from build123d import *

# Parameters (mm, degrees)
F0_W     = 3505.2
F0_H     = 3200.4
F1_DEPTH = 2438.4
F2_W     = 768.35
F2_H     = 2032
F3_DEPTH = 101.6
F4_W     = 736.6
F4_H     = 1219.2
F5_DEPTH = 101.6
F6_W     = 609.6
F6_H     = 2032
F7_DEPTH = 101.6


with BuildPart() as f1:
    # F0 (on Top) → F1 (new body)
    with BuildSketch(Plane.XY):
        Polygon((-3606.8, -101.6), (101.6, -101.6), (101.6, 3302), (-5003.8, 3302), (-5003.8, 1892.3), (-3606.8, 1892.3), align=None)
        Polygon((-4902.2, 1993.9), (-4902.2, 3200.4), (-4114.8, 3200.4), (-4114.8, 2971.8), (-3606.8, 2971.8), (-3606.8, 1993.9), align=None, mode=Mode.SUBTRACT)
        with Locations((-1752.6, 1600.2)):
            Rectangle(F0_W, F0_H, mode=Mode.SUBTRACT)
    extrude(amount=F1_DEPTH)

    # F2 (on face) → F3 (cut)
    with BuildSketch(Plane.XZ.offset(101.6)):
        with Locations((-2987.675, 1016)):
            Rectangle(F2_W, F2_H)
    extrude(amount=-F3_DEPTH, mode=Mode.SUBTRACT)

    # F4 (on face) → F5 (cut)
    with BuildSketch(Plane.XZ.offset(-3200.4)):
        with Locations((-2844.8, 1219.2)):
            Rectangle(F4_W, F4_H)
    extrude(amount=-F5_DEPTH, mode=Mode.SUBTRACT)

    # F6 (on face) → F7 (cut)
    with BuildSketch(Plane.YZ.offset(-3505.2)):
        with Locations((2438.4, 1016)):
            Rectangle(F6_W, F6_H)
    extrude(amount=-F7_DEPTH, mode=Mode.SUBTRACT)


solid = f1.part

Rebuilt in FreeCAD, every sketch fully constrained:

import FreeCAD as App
import Part
import Sketcher

V = App.Vector
Q = App.Units.Quantity

doc = App.newDocument("Part")
body = doc.addObject("PartDesign::Body", "Body")

# Sketch on XY plane
sketch1 = body.newObject("Sketcher::SketchObject", "Sketch")
sketch1.AttachmentSupport = (doc.getObject("XY_Plane"), [""])
sketch1.MapMode = "FlatFace"
sketch1.addGeometry(Part.LineSegment(V(-3607, -102, 0), V(102, -102, 0)), False)
sketch1.addGeometry(Part.LineSegment(V(102, -102, 0), V(102, 3302, 0)), False)
sketch1.addGeometry(Part.LineSegment(V(102, 3302, 0), V(-5004, 3302, 0)), False)
sketch1.addGeometry(Part.LineSegment(V(-5004, 3302, 0), V(-5004, 1892, 0)), False)
sketch1.addGeometry(Part.LineSegment(V(-5004, 1892, 0), V(-3607, 1892, 0)), False)
sketch1.addGeometry(Part.LineSegment(V(-3607, 1892, 0), V(-3607, -102, 0)), False)
sketch1.addGeometry(Part.LineSegment(V(0, 0, 0), V(-3505, 0, 0)), False)
sketch1.addGeometry(Part.LineSegment(V(-3505, 0, 0), V(-3505, 3200, 0)), False)
sketch1.addGeometry(Part.LineSegment(V(-3505, 3200, 0), V(0, 3200, 0)), False)
sketch1.addGeometry(Part.LineSegment(V(0, 3200, 0), V(0, 0, 0)), False)
sketch1.addGeometry(Part.LineSegment(V(-3607, 1994, 0), V(-4902, 1994, 0)), False)
sketch1.addGeometry(Part.LineSegment(V(-4902, 1994, 0), V(-4902, 3200, 0)), False)
sketch1.addGeometry(Part.LineSegment(V(-4902, 3200, 0), V(-4115, 3200, 0)), False)
sketch1.addGeometry(Part.LineSegment(V(-4115, 3200, 0), V(-4115, 2972, 0)), False)
sketch1.addGeometry(Part.LineSegment(V(-4115, 2972, 0), V(-3607, 2972, 0)), False)
sketch1.addGeometry(Part.LineSegment(V(-3607, 2972, 0), V(-3607, 1994, 0)), False)
sketch1.addConstraint(Sketcher.Constraint("Coincident", 0, 2, 1, 1))
sketch1.addConstraint(Sketcher.Constraint("Coincident", 1, 2, 2, 1))
sketch1.addConstraint(Sketcher.Constraint("Coincident", 2, 2, 3, 1))
sketch1.addConstraint(Sketcher.Constraint("Coincident", 3, 2, 4, 1))
sketch1.addConstraint(Sketcher.Constraint("Coincident", 4, 2, 5, 1))
sketch1.addConstraint(Sketcher.Constraint("Coincident", 5, 2, 0, 1))
sketch1.addConstraint(Sketcher.Constraint("Coincident", 6, 2, 7, 1))
sketch1.addConstraint(Sketcher.Constraint("Coincident", 7, 2, 8, 1))
sketch1.addConstraint(Sketcher.Constraint("Coincident", 8, 2, 9, 1))
sketch1.addConstraint(Sketcher.Constraint("Coincident", 9, 2, 6, 1))
sketch1.addConstraint(Sketcher.Constraint("Coincident", 10, 2, 11, 1))
sketch1.addConstraint(Sketcher.Constraint("Coincident", 11, 2, 12, 1))
sketch1.addConstraint(Sketcher.Constraint("Coincident", 12, 2, 13, 1))
sketch1.addConstraint(Sketcher.Constraint("Coincident", 13, 2, 14, 1))
sketch1.addConstraint(Sketcher.Constraint("Coincident", 14, 2, 15, 1))
sketch1.addConstraint(Sketcher.Constraint("Coincident", 15, 2, 10, 1))
sketch1.addConstraint(Sketcher.Constraint("Horizontal", 0))
sketch1.addConstraint(Sketcher.Constraint("Vertical", 1))
sketch1.addConstraint(Sketcher.Constraint("Horizontal", 2))
sketch1.addConstraint(Sketcher.Constraint("Vertical", 3))
sketch1.addConstraint(Sketcher.Constraint("Horizontal", 4))
sketch1.addConstraint(Sketcher.Constraint("Vertical", 5))
sketch1.addConstraint(Sketcher.Constraint("Horizontal", 6))
sketch1.addConstraint(Sketcher.Constraint("Vertical", 7))
sketch1.addConstraint(Sketcher.Constraint("Horizontal", 8))
sketch1.addConstraint(Sketcher.Constraint("Vertical", 9))
sketch1.addConstraint(Sketcher.Constraint("Horizontal", 10))
sketch1.addConstraint(Sketcher.Constraint("Vertical", 11))
sketch1.addConstraint(Sketcher.Constraint("Horizontal", 12))
sketch1.addConstraint(Sketcher.Constraint("Vertical", 13))
sketch1.addConstraint(Sketcher.Constraint("Horizontal", 14))
sketch1.addConstraint(Sketcher.Constraint("Vertical", 15))
sketch1.addConstraint(Sketcher.Constraint("Coincident", 9, 2, -1, 1))
sketch1.addConstraint(Sketcher.Constraint("Horizontal", 8, 2, 11, 2))
sketch1.addConstraint(Sketcher.Constraint("Vertical", 5, 2, 14, 2))
sketch1.addConstraint(Sketcher.Constraint("DistanceX", 0, 1, 0, 2, Q("146 in")))
sketch1.addConstraint(Sketcher.Constraint("DistanceX", 2, 2, 2, 1, Q("201 in")))
sketch1.addConstraint(Sketcher.Constraint("DistanceX", 6, 2, 6, 1, Q("138 in")))
sketch1.addConstraint(Sketcher.Constraint("DistanceX", 10, 2, 10, 1, Q("51 in")))
sketch1.addConstraint(Sketcher.Constraint("DistanceX", 12, 1, 12, 2, Q("31 in")))
sketch1.addConstraint(Sketcher.Constraint("DistanceY", 1, 1, 1, 2, Q("134 in")))
sketch1.addConstraint(Sketcher.Constraint("DistanceY", 7, 1, 7, 2, Q("126 in")))
sketch1.addConstraint(Sketcher.Constraint("DistanceY", 13, 2, 13, 1, Q("9 in")))
sketch1.addConstraint(Sketcher.Constraint("DistanceY", 3, 2, 3, 1, Q("55.5 in")))
sketch1.addConstraint(Sketcher.Constraint("DistanceY", 11, 1, 11, 2, Q("47.5 in")))
sketch1.addConstraint(Sketcher.Constraint("DistanceX", -1, 1, 0, 2, Q("4 in")))
sketch1.addConstraint(Sketcher.Constraint("DistanceY", 0, 2, -1, 1, Q("4 in")))
pad1 = body.newObject("PartDesign::Pad", "Pad")
pad1.Profile = sketch1
pad1.Length = Q("96 in")

# Sketch on XZ plane
sketch2 = body.newObject("Sketcher::SketchObject", "Sketch001")
sketch2.AttachmentSupport = (doc.getObject("XZ_Plane"), [""])
sketch2.MapMode = "FlatFace"
sketch2.AttachmentOffset = App.Placement(V(0, 0, 4 * 25.4), App.Rotation())
sketch2.addGeometry(Part.LineSegment(V(-3372, 2032, 0), V(-3372, 0, 0)), False)
sketch2.addGeometry(Part.LineSegment(V(-3372, 0, 0), V(-2604, 0, 0)), False)
sketch2.addGeometry(Part.LineSegment(V(-2604, 0, 0), V(-2604, 2032, 0)), False)
sketch2.addGeometry(Part.LineSegment(V(-2604, 2032, 0), V(-3372, 2032, 0)), False)
sketch2.addConstraint(Sketcher.Constraint("Coincident", 0, 2, 1, 1))
sketch2.addConstraint(Sketcher.Constraint("Coincident", 1, 2, 2, 1))
sketch2.addConstraint(Sketcher.Constraint("Coincident", 2, 2, 3, 1))
sketch2.addConstraint(Sketcher.Constraint("Coincident", 3, 2, 0, 1))
sketch2.addConstraint(Sketcher.Constraint("Vertical", 0))
sketch2.addConstraint(Sketcher.Constraint("Horizontal", 1))
sketch2.addConstraint(Sketcher.Constraint("Vertical", 2))
sketch2.addConstraint(Sketcher.Constraint("Horizontal", 3))
sketch2.addConstraint(Sketcher.Constraint("PointOnObject", 0, 2, -1))
sketch2.addConstraint(Sketcher.Constraint("DistanceY", 0, 2, 0, 1, Q("80 in")))
sketch2.addConstraint(Sketcher.Constraint("DistanceX", 1, 1, 1, 2, Q("30.25 in")))
sketch2.addConstraint(Sketcher.Constraint("DistanceX", 1, 2, -1, 1, Q("102.5 in")))
pocket1 = body.newObject("PartDesign::Pocket", "Pocket")
pocket1.Profile = sketch2
pocket1.Length = Q("4 in")

# Sketch on XZ plane
sketch3 = body.newObject("Sketcher::SketchObject", "Sketch002")
sketch3.AttachmentSupport = (doc.getObject("XZ_Plane"), [""])
sketch3.MapMode = "FlatFace"
sketch3.AttachmentOffset = App.Placement(V(0, 0, -126 * 25.4), App.Rotation())
sketch3.addGeometry(Part.LineSegment(V(-3213, 1829, 0), V(-3213, 610, 0)), False)
sketch3.addGeometry(Part.LineSegment(V(-3213, 610, 0), V(-2476, 610, 0)), False)
sketch3.addGeometry(Part.LineSegment(V(-2476, 610, 0), V(-2476, 1829, 0)), False)
sketch3.addGeometry(Part.LineSegment(V(-2476, 1829, 0), V(-3213, 1829, 0)), False)
sketch3.addConstraint(Sketcher.Constraint("Coincident", 0, 2, 1, 1))
sketch3.addConstraint(Sketcher.Constraint("Coincident", 1, 2, 2, 1))
sketch3.addConstraint(Sketcher.Constraint("Coincident", 2, 2, 3, 1))
sketch3.addConstraint(Sketcher.Constraint("Coincident", 3, 2, 0, 1))
sketch3.addConstraint(Sketcher.Constraint("Vertical", 0))
sketch3.addConstraint(Sketcher.Constraint("Horizontal", 1))
sketch3.addConstraint(Sketcher.Constraint("Vertical", 2))
sketch3.addConstraint(Sketcher.Constraint("Horizontal", 3))
sketch3.addConstraint(Sketcher.Constraint("DistanceX", 1, 1, 1, 2, Q("29 in")))
sketch3.addConstraint(Sketcher.Constraint("DistanceY", 0, 2, 0, 1, Q("48 in")))
sketch3.addConstraint(Sketcher.Constraint("DistanceY", -1, 1, 0, 2, Q("24 in")))
sketch3.addConstraint(Sketcher.Constraint("DistanceX", 0, 2, -1, 1, Q("126.5 in")))
pocket2 = body.newObject("PartDesign::Pocket", "Pocket001")
pocket2.Profile = sketch3
pocket2.Length = Q("4 in")

# Sketch on YZ plane
sketch4 = body.newObject("Sketcher::SketchObject", "Sketch003")
sketch4.AttachmentSupport = (doc.getObject("YZ_Plane"), [""])
sketch4.MapMode = "FlatFace"
sketch4.AttachmentOffset = App.Placement(V(0, 0, -138 * 25.4), App.Rotation())
sketch4.addGeometry(Part.LineSegment(V(2134, 2032, 0), V(2134, 0, 0)), False)
sketch4.addGeometry(Part.LineSegment(V(2134, 0, 0), V(2743, 0, 0)), False)
sketch4.addGeometry(Part.LineSegment(V(2743, 0, 0), V(2743, 2032, 0)), False)
sketch4.addGeometry(Part.LineSegment(V(2743, 2032, 0), V(2134, 2032, 0)), False)
sketch4.addConstraint(Sketcher.Constraint("Coincident", 0, 2, 1, 1))
sketch4.addConstraint(Sketcher.Constraint("Coincident", 1, 2, 2, 1))
sketch4.addConstraint(Sketcher.Constraint("Coincident", 2, 2, 3, 1))
sketch4.addConstraint(Sketcher.Constraint("Coincident", 3, 2, 0, 1))
sketch4.addConstraint(Sketcher.Constraint("Vertical", 0))
sketch4.addConstraint(Sketcher.Constraint("Horizontal", 1))
sketch4.addConstraint(Sketcher.Constraint("Vertical", 2))
sketch4.addConstraint(Sketcher.Constraint("Horizontal", 3))
sketch4.addConstraint(Sketcher.Constraint("PointOnObject", 0, 2, -1))
sketch4.addConstraint(Sketcher.Constraint("DistanceX", 1, 1, 1, 2, Q("24 in")))
sketch4.addConstraint(Sketcher.Constraint("DistanceY", 0, 2, 0, 1, Q("80 in")))
sketch4.addConstraint(Sketcher.Constraint("DistanceX", -1, 1, 0, 2, Q("84 in")))
pocket3 = body.newObject("PartDesign::Pocket", "Pocket002")
pocket3.Profile = sketch4
pocket3.Length = Q("4 in")

doc.recompute()
